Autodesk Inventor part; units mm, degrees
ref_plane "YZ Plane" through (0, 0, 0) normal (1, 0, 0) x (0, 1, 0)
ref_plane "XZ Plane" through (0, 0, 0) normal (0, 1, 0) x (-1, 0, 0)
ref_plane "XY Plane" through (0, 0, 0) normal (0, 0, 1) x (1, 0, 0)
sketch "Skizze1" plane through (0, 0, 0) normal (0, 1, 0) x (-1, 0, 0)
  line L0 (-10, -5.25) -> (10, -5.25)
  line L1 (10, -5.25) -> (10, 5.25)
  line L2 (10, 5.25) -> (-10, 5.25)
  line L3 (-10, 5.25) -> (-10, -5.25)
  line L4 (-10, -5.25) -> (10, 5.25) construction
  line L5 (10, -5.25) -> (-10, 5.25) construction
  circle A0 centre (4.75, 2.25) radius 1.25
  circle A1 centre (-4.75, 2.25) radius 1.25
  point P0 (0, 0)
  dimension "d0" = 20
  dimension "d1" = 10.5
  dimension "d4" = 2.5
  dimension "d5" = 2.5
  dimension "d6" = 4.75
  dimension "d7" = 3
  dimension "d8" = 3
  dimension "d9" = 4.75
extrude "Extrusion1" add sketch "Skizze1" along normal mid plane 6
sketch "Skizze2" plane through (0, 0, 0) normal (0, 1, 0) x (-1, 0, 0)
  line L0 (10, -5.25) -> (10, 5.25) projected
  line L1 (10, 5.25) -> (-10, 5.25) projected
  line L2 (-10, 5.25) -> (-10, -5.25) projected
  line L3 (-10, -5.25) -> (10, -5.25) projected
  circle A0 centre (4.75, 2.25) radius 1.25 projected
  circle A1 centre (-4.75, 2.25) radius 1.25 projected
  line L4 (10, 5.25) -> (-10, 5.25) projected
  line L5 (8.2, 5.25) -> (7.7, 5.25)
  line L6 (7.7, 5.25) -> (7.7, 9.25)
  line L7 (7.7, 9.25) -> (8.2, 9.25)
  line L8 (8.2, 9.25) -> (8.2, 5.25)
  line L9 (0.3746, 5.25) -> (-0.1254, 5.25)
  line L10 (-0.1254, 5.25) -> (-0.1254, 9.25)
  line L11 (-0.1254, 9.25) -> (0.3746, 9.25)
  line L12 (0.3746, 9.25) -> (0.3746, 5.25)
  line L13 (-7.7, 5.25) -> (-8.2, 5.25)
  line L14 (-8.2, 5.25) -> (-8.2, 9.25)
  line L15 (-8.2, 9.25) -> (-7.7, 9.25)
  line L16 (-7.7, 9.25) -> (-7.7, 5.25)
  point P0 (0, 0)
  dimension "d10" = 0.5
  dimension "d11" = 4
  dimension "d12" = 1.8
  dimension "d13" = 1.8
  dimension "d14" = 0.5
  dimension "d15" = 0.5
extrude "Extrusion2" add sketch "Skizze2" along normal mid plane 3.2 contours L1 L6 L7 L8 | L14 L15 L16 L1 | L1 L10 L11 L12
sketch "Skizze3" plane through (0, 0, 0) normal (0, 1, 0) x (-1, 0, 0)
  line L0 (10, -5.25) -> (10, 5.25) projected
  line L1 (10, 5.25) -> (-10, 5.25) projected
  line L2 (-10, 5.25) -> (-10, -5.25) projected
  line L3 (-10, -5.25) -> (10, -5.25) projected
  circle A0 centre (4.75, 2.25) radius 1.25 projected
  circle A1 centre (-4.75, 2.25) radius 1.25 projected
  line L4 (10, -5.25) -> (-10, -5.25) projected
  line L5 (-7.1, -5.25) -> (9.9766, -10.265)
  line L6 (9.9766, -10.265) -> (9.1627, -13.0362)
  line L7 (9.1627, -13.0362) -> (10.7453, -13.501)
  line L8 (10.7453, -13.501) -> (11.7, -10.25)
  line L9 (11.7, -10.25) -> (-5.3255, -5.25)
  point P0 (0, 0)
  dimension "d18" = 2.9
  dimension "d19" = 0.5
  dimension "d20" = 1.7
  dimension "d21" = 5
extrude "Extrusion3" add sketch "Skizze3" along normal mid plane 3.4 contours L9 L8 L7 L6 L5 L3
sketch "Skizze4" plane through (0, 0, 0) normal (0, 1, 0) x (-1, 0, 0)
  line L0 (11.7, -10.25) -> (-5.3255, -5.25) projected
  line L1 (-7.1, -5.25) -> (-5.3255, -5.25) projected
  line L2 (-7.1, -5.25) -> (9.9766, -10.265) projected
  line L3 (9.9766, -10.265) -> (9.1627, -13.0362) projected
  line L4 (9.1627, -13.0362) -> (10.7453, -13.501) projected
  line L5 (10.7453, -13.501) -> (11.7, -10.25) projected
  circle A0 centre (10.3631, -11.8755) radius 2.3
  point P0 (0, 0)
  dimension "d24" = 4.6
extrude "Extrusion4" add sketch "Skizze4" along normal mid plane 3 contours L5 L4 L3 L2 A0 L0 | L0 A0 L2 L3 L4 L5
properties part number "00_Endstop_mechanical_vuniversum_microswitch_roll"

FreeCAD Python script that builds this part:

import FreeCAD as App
import Part
import Sketcher


def add_polygon(sketch, points):
    """Adds a closed chain of lines whose ends are joined by coincident constraints."""
    first, n = sketch.GeometryCount, len(points)
    for a, b in zip(points, points[1:] + points[:1]):
        sketch.addGeometry(Part.LineSegment(App.Vector(*a, 0), App.Vector(*b, 0)), False)
    for i in range(n):
        sketch.addConstraint(Sketcher.Constraint("Coincident", first + i, 2, first + (i + 1) % n, 1))

doc = App.newDocument("Part")
body = doc.addObject("PartDesign::Body", "Body")

# Sketch on XZ plane
sketch1 = doc.addObject("Sketcher::SketchObject", "Sketch")
body.addObject(sketch1)
sketch1.AttachmentSupport = (doc.XZ_Plane, [""])
sketch1.MapMode = "FlatFace"
add_polygon(sketch1, [(10, 5.2), (10, -5.2), (-10, -5.2), (-10, 5.2)])  # lines 0-3
sketch1.addGeometry(Part.Circle(App.Vector(4.8, 2.2, 0), App.Vector(0, 0, 1), 1.2), False)  # 4
sketch1.addGeometry(Part.Circle(App.Vector(-4.8, 2.2, 0), App.Vector(0, 0, 1), 1.2), False)  # 5
sketch1.addConstraint([
    Sketcher.Constraint("Vertical", 0),
    Sketcher.Constraint("Horizontal", 1),
    Sketcher.Constraint("Vertical", 2),
    Sketcher.Constraint("Horizontal", 3),
    Sketcher.Constraint("Equal", 4, 5),
    Sketcher.Constraint("Symmetric", 0, 2, 2, 2, -1, 1),
    Sketcher.Constraint("Symmetric", 4, 3, 5, 3, -2),
    Sketcher.Constraint("Diameter", 4, 2.5),
    Sketcher.Constraint("DistanceX", 1, 2, 1, 1, 20.0),
    Sketcher.Constraint("DistanceY", 0, 2, 0, 1, 10.5),
    Sketcher.Constraint("DistanceY", 5, 3, 2, 2, 3.0),
    Sketcher.Constraint("DistanceX", -1, 1, 4, 3, 4.75),
])
pad1 = doc.addObject("PartDesign::Pad", "Pad")
body.addObject(pad1)
pad1.Profile = sketch1
pad1.Length = 6
pad1.Midplane = True

# Sketch on XZ plane
sketch2 = doc.addObject("Sketcher::SketchObject", "Sketch001")
body.addObject(sketch2)
sketch2.AttachmentSupport = (doc.XZ_Plane, [""])
sketch2.MapMode = "FlatFace"
add_polygon(sketch2, [(-7.7, 5.25), (-8.2, 5.25), (-8.2, 9.25), (-7.7, 9.25)])  # lines 0-3
add_polygon(sketch2, [(8.2, 9.25), (8.2, 5.25), (7.7, 5.25), (7.7, 9.25)])  # lines 4-7
add_polygon(sketch2, [(0.13, 5.25), (-0.37, 5.25), (-0.37, 9.25), (0.13, 9.25)])  # lines 8-11
sketch2.addConstraint([
    Sketcher.Constraint("Horizontal", 0),
    Sketcher.Constraint("Vertical", 1),
    Sketcher.Constraint("Horizontal", 2),
    Sketcher.Constraint("Vertical", 3),
    Sketcher.Constraint("Vertical", 4),
    Sketcher.Constraint("Horizontal", 5),
    Sketcher.Constraint("Vertical", 6),
    Sketcher.Constraint("Horizontal", 7),
    Sketcher.Constraint("Horizontal", 8),
    Sketcher.Constraint("Vertical", 9),
    Sketcher.Constraint("Horizontal", 10),
    Sketcher.Constraint("Vertical", 11),
    Sketcher.Constraint("Symmetric", 0, 2, 4, 2, -2),
    Sketcher.Constraint("Symmetric", 2, 2, 6, 2, -2),
    Sketcher.Constraint("Horizontal", 5, 2, 8, 2),
    Sketcher.Constraint("Horizontal", 7, 2, 9, 2),
    Sketcher.Constraint("Equal", 7, 8),
    Sketcher.Constraint("DistanceY", 1, 1, 1, 2, 4.0),
    Sketcher.Constraint("DistanceX", 0, 2, 0, 1, 0.5),
    Sketcher.Constraint("DistanceX", 0, 2, -1, 1, 8.2),
    Sketcher.Constraint("DistanceY", -1, 1, 0, 2, 5.25),
    Sketcher.Constraint("DistanceX", 8, 2, -1, 1, 0.3746),
])
pad2 = doc.addObject("PartDesign::Pad", "Pad001")
body.addObject(pad2)
pad2.Profile = sketch2
pad2.Length = 3.2
pad2.Midplane = True

# Sketch on XZ plane
sketch3 = doc.addObject("Sketcher::SketchObject", "Sketch002")
body.addObject(sketch3)
sketch3.AttachmentSupport = (doc.XZ_Plane, [""])
sketch3.MapMode = "FlatFace"
add_polygon(sketch3, [(-11.7, -10.2), (5.3, -5.2), (7.1, -5.2), (-10, -10.3), (-9.2, -13), (-10.7, -13.5)])  # lines 0-5
sketch3.addConstraint([
    Sketcher.Constraint("Horizontal", 1),
    Sketcher.Constraint("Parallel", 0, 2),
    Sketcher.Constraint("Perpendicular", 2, 3),
    Sketcher.Constraint("Perpendicular", 3, 4),
    Sketcher.Constraint("Perpendicular", 4, 5),
    Sketcher.Constraint("DistanceY", 5, 2, 0, 2, 5.0),
    Sketcher.Constraint("DistanceX", -1, 1, 1, 2, 7.1),
    Sketcher.Constraint("DistanceX", 5, 2, -1, 1, 11.7),
    Sketcher.Constraint("DistanceY", 0, 2, -1, 1, 5.25),
    Sketcher.Constraint("DistanceX", 1, 1, 1, 2, 1.7745),
    Sketcher.Constraint("DistanceY", 2, 2, -1, 1, 10.265),
    Sketcher.Constraint("DistanceY", 4, 2, -1, 1, 13.501),
])
pad3 = doc.addObject("PartDesign::Pad", "Pad002")
body.addObject(pad3)
pad3.Profile = sketch3
pad3.Length = 3.4
pad3.Midplane = True

# Sketch on XZ plane
sketch4 = doc.addObject("Sketcher::SketchObject", "Sketch003")
body.addObject(sketch4)
sketch4.AttachmentSupport = (doc.XZ_Plane, [""])
sketch4.MapMode = "FlatFace"
sketch4.addGeometry(Part.Circle(App.Vector(-10.4, -11.9, 0), App.Vector(0, 0, 1), 2.3), False)
sketch4.addConstraint([
    Sketcher.Constraint("Diameter", 0, 4.6),
    Sketcher.Constraint("DistanceX", 0, 3, -1, 1, 10.363),
    Sketcher.Constraint("DistanceY", 0, 3, -1, 1, 11.8755),
])
pad4 = doc.addObject("PartDesign::Pad", "Pad003")
body.addObject(pad4)
pad4.Profile = sketch4
pad4.Length = 3
pad4.Midplane = True

doc.recompute()
